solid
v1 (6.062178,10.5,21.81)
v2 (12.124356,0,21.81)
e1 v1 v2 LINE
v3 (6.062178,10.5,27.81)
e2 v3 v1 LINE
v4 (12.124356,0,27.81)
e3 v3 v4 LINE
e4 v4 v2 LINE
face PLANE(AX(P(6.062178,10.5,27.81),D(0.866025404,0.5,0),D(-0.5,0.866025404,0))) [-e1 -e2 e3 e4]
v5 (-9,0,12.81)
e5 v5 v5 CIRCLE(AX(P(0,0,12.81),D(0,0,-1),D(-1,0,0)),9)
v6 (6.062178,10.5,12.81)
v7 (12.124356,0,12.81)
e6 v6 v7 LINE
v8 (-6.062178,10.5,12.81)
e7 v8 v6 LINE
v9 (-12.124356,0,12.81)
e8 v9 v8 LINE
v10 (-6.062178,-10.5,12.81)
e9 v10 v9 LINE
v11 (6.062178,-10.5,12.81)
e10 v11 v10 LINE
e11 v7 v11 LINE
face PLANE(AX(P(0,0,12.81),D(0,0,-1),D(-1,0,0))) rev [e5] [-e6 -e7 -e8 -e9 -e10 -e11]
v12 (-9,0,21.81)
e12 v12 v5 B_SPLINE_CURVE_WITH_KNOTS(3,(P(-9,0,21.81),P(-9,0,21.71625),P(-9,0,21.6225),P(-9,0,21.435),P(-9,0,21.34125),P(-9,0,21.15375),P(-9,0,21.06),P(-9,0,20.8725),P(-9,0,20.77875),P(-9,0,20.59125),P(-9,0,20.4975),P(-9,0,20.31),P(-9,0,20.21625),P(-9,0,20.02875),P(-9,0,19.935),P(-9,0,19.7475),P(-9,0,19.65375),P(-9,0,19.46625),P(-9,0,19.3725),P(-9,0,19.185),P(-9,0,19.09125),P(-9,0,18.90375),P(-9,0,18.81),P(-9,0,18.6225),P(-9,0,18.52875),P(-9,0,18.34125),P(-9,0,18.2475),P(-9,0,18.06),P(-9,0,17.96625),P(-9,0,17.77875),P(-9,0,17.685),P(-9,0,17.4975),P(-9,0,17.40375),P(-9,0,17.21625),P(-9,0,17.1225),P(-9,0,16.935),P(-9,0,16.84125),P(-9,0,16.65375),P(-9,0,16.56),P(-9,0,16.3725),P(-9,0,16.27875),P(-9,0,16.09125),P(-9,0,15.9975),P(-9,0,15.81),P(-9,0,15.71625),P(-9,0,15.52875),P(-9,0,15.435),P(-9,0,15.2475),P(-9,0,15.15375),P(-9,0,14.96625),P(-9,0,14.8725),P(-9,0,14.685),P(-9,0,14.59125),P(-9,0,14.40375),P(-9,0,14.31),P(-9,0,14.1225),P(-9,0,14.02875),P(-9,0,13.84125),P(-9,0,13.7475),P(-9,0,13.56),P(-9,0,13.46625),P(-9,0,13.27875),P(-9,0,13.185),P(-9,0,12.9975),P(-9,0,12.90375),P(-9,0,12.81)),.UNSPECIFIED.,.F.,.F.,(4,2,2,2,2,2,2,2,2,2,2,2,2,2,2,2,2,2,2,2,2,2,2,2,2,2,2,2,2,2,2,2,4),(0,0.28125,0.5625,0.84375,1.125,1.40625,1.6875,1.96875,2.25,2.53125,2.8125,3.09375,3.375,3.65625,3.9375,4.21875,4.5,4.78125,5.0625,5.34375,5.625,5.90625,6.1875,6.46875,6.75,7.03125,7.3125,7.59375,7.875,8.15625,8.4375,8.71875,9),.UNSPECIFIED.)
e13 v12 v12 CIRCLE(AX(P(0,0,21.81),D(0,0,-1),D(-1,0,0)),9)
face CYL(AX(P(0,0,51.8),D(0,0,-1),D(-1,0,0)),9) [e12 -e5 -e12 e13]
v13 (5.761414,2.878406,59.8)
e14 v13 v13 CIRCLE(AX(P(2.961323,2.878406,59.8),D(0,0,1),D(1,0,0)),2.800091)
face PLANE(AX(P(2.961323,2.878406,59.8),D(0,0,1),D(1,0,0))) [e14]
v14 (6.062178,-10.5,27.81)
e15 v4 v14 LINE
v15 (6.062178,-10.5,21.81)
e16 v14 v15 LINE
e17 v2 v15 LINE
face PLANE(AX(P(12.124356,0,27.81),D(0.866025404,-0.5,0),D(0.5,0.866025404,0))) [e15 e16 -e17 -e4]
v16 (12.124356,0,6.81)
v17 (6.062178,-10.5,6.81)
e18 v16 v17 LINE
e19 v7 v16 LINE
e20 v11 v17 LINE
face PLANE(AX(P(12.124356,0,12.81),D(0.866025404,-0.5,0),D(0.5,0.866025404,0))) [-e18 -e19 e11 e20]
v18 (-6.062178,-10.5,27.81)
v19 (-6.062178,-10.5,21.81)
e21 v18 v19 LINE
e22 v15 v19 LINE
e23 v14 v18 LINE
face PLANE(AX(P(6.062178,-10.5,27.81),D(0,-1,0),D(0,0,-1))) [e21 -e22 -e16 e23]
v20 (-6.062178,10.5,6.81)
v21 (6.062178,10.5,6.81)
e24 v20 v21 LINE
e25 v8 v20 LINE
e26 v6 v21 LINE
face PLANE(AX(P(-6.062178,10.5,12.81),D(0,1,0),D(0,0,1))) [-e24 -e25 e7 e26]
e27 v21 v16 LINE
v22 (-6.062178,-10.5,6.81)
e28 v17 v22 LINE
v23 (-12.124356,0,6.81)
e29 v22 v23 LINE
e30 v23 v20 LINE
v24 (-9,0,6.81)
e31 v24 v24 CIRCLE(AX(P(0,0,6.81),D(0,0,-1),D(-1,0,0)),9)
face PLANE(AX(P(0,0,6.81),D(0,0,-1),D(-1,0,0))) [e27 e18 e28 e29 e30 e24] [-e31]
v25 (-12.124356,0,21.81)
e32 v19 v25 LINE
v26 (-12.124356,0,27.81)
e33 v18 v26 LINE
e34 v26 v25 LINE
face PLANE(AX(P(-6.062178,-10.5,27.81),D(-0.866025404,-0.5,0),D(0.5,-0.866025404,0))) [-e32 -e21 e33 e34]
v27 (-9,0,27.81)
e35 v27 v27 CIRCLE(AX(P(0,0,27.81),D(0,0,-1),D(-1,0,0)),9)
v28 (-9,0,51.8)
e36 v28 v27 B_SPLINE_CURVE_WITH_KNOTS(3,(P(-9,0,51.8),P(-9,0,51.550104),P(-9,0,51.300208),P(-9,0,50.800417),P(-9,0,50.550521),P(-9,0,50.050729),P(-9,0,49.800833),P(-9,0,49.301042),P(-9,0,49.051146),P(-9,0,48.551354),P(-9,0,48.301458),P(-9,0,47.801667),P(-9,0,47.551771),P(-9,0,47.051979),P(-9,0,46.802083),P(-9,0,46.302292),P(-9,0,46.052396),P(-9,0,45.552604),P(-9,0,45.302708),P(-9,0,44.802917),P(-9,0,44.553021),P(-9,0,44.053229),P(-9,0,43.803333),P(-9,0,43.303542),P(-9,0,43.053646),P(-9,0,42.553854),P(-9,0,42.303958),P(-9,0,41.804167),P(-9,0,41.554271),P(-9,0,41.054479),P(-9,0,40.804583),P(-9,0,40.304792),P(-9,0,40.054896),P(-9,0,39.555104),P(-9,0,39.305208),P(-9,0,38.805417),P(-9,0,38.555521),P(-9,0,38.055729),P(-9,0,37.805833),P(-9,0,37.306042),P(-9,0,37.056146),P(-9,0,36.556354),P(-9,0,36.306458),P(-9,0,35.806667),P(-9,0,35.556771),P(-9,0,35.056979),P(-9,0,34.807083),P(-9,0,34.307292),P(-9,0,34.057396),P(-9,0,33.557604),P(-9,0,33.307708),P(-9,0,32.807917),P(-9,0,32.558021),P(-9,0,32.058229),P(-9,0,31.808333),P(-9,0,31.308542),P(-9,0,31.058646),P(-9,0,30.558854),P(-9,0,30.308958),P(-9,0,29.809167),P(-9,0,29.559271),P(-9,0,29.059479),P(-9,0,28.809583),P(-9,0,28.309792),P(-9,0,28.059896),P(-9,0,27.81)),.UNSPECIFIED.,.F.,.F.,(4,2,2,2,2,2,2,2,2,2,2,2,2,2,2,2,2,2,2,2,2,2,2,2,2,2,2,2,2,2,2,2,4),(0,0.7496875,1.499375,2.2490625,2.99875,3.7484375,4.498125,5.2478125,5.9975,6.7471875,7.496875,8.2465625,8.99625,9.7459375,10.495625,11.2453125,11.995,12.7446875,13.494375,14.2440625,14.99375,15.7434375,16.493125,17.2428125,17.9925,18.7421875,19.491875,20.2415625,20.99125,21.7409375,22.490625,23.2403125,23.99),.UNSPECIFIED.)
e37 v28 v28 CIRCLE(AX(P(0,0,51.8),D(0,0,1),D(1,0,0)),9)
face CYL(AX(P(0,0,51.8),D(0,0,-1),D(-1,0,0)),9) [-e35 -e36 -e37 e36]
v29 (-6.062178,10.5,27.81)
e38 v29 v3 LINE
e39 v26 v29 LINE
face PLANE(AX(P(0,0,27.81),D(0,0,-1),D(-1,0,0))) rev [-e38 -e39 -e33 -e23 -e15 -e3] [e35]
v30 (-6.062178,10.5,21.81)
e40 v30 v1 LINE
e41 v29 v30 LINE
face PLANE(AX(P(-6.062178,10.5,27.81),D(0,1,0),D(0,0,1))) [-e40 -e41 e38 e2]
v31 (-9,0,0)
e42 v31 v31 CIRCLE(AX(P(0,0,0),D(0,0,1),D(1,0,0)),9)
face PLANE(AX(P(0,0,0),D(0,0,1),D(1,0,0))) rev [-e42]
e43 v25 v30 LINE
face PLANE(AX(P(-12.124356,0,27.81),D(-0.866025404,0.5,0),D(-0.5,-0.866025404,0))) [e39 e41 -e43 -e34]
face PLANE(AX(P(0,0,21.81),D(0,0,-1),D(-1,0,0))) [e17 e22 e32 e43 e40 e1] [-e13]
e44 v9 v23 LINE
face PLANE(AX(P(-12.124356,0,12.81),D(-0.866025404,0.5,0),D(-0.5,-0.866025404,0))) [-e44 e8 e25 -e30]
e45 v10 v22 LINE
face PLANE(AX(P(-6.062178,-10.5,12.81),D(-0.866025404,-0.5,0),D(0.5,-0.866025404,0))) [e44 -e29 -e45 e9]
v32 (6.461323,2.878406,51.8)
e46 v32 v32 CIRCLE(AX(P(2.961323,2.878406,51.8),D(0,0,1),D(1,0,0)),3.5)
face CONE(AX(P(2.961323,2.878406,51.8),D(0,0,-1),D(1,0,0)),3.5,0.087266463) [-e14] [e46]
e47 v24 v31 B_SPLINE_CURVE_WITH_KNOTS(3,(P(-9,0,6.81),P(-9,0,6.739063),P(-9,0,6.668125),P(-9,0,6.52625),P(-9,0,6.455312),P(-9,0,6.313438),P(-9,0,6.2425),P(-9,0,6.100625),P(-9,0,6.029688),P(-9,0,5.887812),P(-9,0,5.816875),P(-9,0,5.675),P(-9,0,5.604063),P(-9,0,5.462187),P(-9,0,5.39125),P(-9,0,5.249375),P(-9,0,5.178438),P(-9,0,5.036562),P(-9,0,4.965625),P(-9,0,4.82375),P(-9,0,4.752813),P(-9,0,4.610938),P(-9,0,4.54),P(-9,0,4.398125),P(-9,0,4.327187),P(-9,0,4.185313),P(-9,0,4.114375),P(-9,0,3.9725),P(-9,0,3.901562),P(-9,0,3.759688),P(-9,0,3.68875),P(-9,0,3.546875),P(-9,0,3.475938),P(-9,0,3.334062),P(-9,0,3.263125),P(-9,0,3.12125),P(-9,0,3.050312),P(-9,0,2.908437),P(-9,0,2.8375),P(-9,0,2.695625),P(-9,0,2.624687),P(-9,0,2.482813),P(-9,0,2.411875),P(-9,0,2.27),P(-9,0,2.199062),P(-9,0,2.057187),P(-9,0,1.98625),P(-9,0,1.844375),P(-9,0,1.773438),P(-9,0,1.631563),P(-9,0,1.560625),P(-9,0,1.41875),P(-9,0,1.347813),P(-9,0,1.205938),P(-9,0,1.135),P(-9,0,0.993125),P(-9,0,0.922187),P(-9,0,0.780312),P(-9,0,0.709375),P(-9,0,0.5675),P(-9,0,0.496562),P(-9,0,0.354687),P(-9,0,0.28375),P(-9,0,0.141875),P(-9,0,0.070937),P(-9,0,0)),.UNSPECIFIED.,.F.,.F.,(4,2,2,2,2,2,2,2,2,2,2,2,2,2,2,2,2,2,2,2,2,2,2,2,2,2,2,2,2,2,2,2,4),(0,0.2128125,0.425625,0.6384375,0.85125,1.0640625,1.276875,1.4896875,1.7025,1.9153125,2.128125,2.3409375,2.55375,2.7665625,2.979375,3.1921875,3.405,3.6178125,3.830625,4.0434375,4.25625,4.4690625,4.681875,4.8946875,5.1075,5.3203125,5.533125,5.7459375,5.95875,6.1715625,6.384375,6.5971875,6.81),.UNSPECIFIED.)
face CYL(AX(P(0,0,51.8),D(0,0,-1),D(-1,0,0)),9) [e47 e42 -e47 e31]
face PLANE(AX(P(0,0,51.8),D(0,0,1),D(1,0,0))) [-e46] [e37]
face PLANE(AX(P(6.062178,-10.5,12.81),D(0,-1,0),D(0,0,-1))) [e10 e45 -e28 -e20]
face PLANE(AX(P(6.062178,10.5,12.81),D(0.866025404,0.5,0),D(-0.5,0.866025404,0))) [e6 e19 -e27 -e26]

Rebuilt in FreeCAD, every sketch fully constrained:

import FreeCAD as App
import Part
import Sketcher
Q = App.Units.Quantity


def add_polygon(sketch, points):
    """Adds a closed chain of lines whose ends are joined by coincident constraints."""
    first, n = sketch.GeometryCount, len(points)
    for a, b in zip(points, points[1:] + points[:1]):
        sketch.addGeometry(Part.LineSegment(App.Vector(*a, 0), App.Vector(*b, 0)), False)
    for i in range(n):
        sketch.addConstraint(Sketcher.Constraint("Coincident", first + i, 2, first + (i + 1) % n, 1))

doc = App.newDocument("Part")
body = doc.addObject("PartDesign::Body", "Body")

sketch1 = body.newObject("Sketcher::SketchObject", "Sketch")
sketch1.AttachmentSupport = (doc.getObject("XY_Plane"), [""])
sketch1.MapMode = "FlatFace"
sketch1.addGeometry(Part.Circle(App.Vector(0, 0, 0), App.Vector(0, 0, 1), 9), False)
sketch1.addConstraint(Sketcher.Constraint("Coincident", 0, 3, -1, 1))
sketch1.addConstraint(Sketcher.Constraint("Diameter", 0, 18.0))
pad1 = body.newObject("PartDesign::Pad", "Pad")
pad1.Profile = sketch1
pad1.Length = 51.8

sketch2 = body.newObject("Sketcher::SketchObject", "Sketch001")
sketch2.AttachmentSupport = (doc.getObject("XY_Plane"), [""])
sketch2.MapMode = "FlatFace"
sketch2.AttachmentOffset = App.Placement(App.Vector(0, 0, 51.8), App.Rotation())
sketch2.addGeometry(Part.Circle(App.Vector(3, 2.9, 0), App.Vector(0, 0, 1), 3.5), False)
sketch2.addConstraint(Sketcher.Constraint("Diameter", 0, 7.0))
sketch2.addConstraint(Sketcher.Constraint("DistanceX", -1, 1, 0, 3, 2.961323))
sketch2.addConstraint(Sketcher.Constraint("DistanceY", -1, 1, 0, 3, 2.878406))
pad2 = body.newObject("PartDesign::Pad", "Pad001")
pad2.Profile = sketch2
pad2.Length = 8
pad2.TaperAngle = -5

sketch3 = body.newObject("Sketcher::SketchObject", "Sketch002")
sketch3.AttachmentSupport = (doc.getObject("XY_Plane"), [""])
sketch3.MapMode = "FlatFace"
sketch3.AttachmentOffset = App.Placement(App.Vector(0, 0, 6.81), App.Rotation())
add_polygon(sketch3, [(-6, 10), (6, 10), (12, 0), (6, -10), (-6, -10), (-12, 0)])
sketch3.addConstraint(Sketcher.Constraint("Horizontal", 0))
sketch3.addConstraint(Sketcher.Constraint("Horizontal", 3))
sketch3.addConstraint(Sketcher.Constraint("Symmetric", 0, 2, 3, 2, -1, 1))
sketch3.addConstraint(Sketcher.Constraint("Symmetric", 1, 2, 4, 2, -1, 1))
sketch3.addConstraint(Sketcher.Constraint("PointOnObject", 1, 2, -1))
sketch3.addConstraint(Sketcher.Constraint("Parallel", 2, 5))
sketch3.addConstraint(Sketcher.Constraint("Vertical", 0, 2, 2, 2))
sketch3.addConstraint(Sketcher.Constraint("Angle", 1, Q("-60 deg")))
sketch3.addConstraint(Sketcher.Constraint("DistanceY", 2, 2, 0, 2, 21.0))
sketch3.addConstraint(Sketcher.Constraint("DistanceX", 0, 1, 0, 2, 12.124356))
pad3 = body.newObject("PartDesign::Pad", "Pad002")
pad3.Profile = sketch3
pad3.Length = 6
doc.recompute()

linearpattern = body.newObject("PartDesign::LinearPattern", "LinearPattern")
linearpattern.Originals = [pad3]
linearpattern.Direction = (doc.getObject("Z_Axis"), [""])
linearpattern.Mode = "offset"
linearpattern.Offset = 15
linearpattern.Occurrences = 2
body.Tip = linearpattern

doc.recompute()
